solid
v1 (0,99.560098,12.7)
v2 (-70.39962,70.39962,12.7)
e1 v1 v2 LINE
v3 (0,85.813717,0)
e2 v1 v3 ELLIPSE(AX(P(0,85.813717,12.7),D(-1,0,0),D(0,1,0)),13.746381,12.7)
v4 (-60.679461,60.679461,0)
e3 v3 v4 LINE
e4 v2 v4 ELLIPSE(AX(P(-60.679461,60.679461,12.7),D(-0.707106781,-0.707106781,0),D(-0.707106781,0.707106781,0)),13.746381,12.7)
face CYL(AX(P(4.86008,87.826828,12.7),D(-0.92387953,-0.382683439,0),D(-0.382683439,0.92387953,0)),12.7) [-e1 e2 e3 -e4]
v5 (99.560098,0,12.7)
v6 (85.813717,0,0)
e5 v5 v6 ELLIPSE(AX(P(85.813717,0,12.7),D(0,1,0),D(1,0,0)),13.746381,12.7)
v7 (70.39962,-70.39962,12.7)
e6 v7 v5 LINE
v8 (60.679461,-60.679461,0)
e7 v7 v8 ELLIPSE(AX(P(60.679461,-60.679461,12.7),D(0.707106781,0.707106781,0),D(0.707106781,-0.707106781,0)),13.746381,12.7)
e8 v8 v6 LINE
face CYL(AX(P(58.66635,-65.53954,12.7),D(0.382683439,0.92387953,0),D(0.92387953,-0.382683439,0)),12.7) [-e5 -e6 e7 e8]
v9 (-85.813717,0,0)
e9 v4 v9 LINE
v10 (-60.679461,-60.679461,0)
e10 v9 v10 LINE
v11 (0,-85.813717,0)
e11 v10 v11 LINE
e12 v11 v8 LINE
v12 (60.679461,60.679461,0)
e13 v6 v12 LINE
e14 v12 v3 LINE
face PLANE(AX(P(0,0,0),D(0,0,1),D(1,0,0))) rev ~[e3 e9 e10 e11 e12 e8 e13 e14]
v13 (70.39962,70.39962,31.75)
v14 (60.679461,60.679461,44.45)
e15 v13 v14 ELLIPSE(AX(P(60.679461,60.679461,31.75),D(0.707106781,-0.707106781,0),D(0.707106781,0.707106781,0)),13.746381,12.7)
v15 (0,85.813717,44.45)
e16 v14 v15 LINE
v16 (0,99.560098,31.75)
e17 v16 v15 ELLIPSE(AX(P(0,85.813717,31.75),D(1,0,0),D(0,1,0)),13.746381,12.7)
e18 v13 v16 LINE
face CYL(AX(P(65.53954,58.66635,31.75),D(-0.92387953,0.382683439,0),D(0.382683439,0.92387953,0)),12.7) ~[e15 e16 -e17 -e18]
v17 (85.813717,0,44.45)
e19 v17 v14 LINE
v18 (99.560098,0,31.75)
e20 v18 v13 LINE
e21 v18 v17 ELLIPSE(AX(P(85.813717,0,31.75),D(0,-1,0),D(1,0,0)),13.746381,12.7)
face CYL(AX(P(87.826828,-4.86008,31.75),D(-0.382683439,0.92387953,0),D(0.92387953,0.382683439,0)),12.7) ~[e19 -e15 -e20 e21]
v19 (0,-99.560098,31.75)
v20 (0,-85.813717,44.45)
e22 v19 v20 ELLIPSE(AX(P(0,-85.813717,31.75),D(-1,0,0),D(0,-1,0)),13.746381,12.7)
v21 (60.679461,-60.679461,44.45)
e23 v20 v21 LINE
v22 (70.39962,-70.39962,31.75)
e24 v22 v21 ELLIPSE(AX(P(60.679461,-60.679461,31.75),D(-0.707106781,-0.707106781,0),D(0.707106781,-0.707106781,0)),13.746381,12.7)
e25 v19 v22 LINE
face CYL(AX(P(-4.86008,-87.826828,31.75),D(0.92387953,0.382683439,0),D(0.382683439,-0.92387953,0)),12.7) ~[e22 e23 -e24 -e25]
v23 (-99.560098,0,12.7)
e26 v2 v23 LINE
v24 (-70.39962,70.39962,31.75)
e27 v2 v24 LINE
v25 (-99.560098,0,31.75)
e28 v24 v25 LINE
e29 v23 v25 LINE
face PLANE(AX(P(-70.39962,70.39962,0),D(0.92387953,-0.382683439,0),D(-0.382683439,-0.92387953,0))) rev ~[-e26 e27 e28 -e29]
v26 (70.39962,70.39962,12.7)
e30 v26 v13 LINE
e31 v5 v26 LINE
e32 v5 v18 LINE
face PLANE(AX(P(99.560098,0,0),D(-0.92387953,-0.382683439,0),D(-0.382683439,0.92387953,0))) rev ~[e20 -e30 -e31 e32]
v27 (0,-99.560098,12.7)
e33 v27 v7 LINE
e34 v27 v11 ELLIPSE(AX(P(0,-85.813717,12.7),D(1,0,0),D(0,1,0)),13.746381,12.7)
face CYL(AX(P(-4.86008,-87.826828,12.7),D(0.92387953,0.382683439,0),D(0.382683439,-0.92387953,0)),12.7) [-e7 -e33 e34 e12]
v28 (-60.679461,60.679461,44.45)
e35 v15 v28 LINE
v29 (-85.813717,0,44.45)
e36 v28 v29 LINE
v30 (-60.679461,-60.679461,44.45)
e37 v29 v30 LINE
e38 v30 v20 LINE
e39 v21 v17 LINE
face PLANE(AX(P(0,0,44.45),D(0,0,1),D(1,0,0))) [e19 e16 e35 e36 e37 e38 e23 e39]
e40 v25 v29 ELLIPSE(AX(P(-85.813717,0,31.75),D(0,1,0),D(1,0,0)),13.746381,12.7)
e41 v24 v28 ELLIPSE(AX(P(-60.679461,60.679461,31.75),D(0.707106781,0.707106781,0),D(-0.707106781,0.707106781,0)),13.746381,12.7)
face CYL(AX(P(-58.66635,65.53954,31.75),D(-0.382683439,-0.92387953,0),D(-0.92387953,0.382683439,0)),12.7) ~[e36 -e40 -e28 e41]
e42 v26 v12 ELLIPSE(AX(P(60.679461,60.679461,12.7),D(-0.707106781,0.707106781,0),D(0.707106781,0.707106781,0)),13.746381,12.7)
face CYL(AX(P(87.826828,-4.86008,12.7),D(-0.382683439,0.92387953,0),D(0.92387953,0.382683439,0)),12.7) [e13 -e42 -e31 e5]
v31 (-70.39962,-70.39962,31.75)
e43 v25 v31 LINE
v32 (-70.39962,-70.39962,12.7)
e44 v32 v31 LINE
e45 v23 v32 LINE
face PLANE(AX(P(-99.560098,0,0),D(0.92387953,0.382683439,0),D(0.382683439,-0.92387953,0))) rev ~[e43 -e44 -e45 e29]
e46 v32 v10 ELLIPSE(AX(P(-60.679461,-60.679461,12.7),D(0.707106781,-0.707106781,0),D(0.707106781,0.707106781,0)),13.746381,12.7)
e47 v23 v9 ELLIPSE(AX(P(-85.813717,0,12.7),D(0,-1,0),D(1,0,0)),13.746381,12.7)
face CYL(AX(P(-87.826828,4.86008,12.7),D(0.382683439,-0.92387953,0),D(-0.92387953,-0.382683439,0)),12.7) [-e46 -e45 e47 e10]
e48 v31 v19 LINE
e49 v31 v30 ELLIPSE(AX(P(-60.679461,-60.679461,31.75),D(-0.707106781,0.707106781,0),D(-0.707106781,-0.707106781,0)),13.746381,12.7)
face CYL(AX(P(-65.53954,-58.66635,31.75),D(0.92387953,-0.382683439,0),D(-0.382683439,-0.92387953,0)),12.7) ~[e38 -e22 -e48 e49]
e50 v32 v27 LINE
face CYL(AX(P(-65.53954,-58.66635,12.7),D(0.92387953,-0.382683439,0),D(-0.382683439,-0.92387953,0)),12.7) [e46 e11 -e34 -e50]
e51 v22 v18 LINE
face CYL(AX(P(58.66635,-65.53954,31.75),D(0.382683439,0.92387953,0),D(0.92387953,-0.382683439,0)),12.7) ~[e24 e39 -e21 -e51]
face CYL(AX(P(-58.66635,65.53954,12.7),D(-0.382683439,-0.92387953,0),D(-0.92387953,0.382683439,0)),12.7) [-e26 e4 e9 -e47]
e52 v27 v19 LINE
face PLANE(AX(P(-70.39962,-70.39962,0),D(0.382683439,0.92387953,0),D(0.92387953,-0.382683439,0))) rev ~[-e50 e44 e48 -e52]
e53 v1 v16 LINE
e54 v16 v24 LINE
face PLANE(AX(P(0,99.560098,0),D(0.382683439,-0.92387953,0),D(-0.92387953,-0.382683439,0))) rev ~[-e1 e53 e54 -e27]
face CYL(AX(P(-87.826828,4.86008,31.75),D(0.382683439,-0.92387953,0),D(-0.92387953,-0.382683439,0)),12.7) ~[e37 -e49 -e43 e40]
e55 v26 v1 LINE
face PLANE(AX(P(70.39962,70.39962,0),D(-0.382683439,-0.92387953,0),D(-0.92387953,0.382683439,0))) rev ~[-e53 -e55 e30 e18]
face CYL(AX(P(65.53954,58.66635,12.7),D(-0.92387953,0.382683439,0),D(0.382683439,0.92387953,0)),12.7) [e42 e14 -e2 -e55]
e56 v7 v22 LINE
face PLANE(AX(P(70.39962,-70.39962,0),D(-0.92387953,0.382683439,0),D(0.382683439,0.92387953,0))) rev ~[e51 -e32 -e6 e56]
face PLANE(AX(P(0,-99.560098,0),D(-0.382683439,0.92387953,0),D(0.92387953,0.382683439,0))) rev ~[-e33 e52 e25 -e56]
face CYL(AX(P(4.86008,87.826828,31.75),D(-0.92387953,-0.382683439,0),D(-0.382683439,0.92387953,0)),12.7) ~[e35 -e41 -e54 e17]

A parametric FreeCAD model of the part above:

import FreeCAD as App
import Part
import Sketcher
from FreeCAD import Vector
Q = App.Units.Quantity


def edges_at(feature, points):
    """Names of the edges that pass closest to the given points."""
    edges = feature.Shape.Edges
    near = lambda p: min(range(len(edges)), key=lambda i: edges[i].distToShape(Part.Vertex(*p))[0])
    return sorted({f"Edge{near(p) + 1}" for p in points})

doc = App.newDocument("Part")
body = doc.addObject("PartDesign::Body", "Body")

# Sketch on XY plane
sketch1 = body.newObject("Sketcher::SketchObject", "Sketch")
sketch1.AttachmentSupport = (doc.getObject("XY_Plane"), [""])
sketch1.MapMode = "FlatFace"
sketch1.addGeometry(Part.LineSegment(Vector(70, -70, 0), Vector(100, 0, 0)), False)
sketch1.addGeometry(Part.LineSegment(Vector(100, 0, 0), Vector(70, 70, 0)), False)
sketch1.addGeometry(Part.LineSegment(Vector(70, 70, 0), Vector(0, 100, 0)), False)
sketch1.addGeometry(Part.LineSegment(Vector(0, 100, 0), Vector(-70, 70, 0)), False)
sketch1.addGeometry(Part.LineSegment(Vector(-70, 70, 0), Vector(-100, 0, 0)), False)
sketch1.addGeometry(Part.LineSegment(Vector(-100, 0, 0), Vector(-70, -70, 0)), False)
sketch1.addGeometry(Part.LineSegment(Vector(-70, -70, 0), Vector(0, -100, 0)), False)
sketch1.addGeometry(Part.LineSegment(Vector(0, -100, 0), Vector(70, -70, 0)), False)
sketch1.addConstraint(Sketcher.Constraint("Coincident", 0, 2, 1, 1))
sketch1.addConstraint(Sketcher.Constraint("Coincident", 1, 2, 2, 1))
sketch1.addConstraint(Sketcher.Constraint("Coincident", 2, 2, 3, 1))
sketch1.addConstraint(Sketcher.Constraint("Coincident", 3, 2, 4, 1))
sketch1.addConstraint(Sketcher.Constraint("Coincident", 4, 2, 5, 1))
sketch1.addConstraint(Sketcher.Constraint("Coincident", 5, 2, 6, 1))
sketch1.addConstraint(Sketcher.Constraint("Coincident", 6, 2, 7, 1))
sketch1.addConstraint(Sketcher.Constraint("Coincident", 7, 2, 0, 1))
sketch1.addConstraint(Sketcher.Constraint("Symmetric", 0, 2, 4, 2, -1, 1))
sketch1.addConstraint(Sketcher.Constraint("Symmetric", 1, 2, 5, 2, -1, 1))
sketch1.addConstraint(Sketcher.Constraint("Symmetric", 2, 2, 6, 2, -1, 1))
sketch1.addConstraint(Sketcher.Constraint("Symmetric", 3, 2, 7, 2, -1, 1))
sketch1.addConstraint(Sketcher.Constraint("Symmetric", 1, 2, 3, 2, -2))
sketch1.addConstraint(Sketcher.Constraint("PointOnObject", 0, 2, -1))
sketch1.addConstraint(Sketcher.Constraint("PointOnObject", 2, 2, -2))
sketch1.addConstraint(Sketcher.Constraint("Perpendicular", 0, 2))
sketch1.addConstraint(Sketcher.Constraint("Equal", 1, 2))
sketch1.addConstraint(Sketcher.Constraint("Distance", 0, Q("3 in")))
sketch1.addConstraint(Sketcher.Constraint("Angle", 0, Q("67.5 deg")))
pad1 = body.newObject("PartDesign::Pad", "Pad")
pad1.Profile = sketch1
pad1.Length = Q("1.75 in")
doc.recompute()

fillet = body.newObject("PartDesign::Fillet", "Fillet")
fillet.Base = (pad1, edges_at(pad1, [
    (-84.98, -35.2, 44.45),
    (-35.2, -84.98, 44.45),
    (35.2, -84.98, 44.45),
    (84.98, -35.2, 44.45),
    (84.98, 35.2, 44.45),
    (35.2, 84.98, 44.45),
    (-35.2, 84.98, 44.45),
    (-84.98, 35.2, 44.45),
    (35.2, -84.98, 0),
    (-35.2, -84.98, 0),
    (84.98, -35.2, 0),
    (84.98, 35.2, 0),
    (-84.98, -35.2, 0),
    (35.2, 84.98, 0),
    (-35.2, 84.98, 0),
    (-84.98, 35.2, 0),
]))
fillet.Radius = Q("0.5 in")

doc.recompute()
